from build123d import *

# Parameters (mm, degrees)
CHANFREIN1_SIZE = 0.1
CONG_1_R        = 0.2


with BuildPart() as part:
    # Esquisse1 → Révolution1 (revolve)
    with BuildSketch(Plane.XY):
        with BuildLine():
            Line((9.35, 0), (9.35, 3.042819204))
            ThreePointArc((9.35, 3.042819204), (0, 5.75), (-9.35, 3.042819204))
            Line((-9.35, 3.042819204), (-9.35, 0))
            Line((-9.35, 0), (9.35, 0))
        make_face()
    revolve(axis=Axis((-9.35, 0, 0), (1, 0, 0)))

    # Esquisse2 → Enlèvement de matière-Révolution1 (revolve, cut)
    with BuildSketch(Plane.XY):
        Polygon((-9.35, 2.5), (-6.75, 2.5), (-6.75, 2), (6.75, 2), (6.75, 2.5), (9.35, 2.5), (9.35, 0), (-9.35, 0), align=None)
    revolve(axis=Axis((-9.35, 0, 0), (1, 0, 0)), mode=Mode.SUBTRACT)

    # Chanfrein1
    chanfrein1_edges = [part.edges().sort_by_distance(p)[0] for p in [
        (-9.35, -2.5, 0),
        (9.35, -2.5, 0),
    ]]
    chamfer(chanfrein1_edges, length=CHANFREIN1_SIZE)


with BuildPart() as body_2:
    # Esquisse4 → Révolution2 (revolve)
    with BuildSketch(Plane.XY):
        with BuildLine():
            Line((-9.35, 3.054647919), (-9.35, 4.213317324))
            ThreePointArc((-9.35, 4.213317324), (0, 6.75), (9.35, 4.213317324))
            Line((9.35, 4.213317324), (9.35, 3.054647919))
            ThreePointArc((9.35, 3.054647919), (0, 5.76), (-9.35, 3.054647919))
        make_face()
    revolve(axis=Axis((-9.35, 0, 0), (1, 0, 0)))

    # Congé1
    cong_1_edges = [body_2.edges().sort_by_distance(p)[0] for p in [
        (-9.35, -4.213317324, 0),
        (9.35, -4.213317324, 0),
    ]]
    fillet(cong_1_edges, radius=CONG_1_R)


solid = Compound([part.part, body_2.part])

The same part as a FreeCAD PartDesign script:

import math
import FreeCAD as App
import Part
import Sketcher
from FreeCAD import Vector


def edges_at(feature, points):
    """Names of the edges that pass closest to the given points."""
    edges = feature.Shape.Edges
    near = lambda p: min(range(len(edges)), key=lambda i: edges[i].distToShape(Part.Vertex(*p))[0])
    return sorted({f"Edge{near(p) + 1}" for p in points})

doc = App.newDocument("Part")
body = doc.addObject("PartDesign::Body", "Body")

# Sketch on XY plane
sketch1 = doc.addObject("Sketcher::SketchObject", "Sketch")
body.addObject(sketch1)
sketch1.AttachmentSupport = (doc.XY_Plane, [""])
sketch1.MapMode = "FlatFace"
sketch1.addGeometry([
    Part.LineSegment(Vector(9.3, 0, 0), Vector(9.3, 3, 0)),
    Part.ArcOfCircle(Part.Circle(Vector(0, -11.8, 0), Vector(0, 0, 1), 17.5), math.radians(58), math.radians(122)),
    Part.LineSegment(Vector(-9.3, 3, 0), Vector(-9.3, 0, 0)),
    Part.LineSegment(Vector(-9.3, 0, 0), Vector(9.3, 0, 0)),
], False)
sketch1.addConstraint([
    Sketcher.Constraint("Coincident", 0, 2, 1, 1),
    Sketcher.Constraint("Coincident", 1, 2, 2, 1),
    Sketcher.Constraint("Coincident", 2, 2, 3, 1),
    Sketcher.Constraint("Coincident", 3, 2, 0, 1),
    Sketcher.Constraint("Vertical", 0),
    Sketcher.Constraint("Vertical", 2),
    Sketcher.Constraint("Horizontal", 3),
    Sketcher.Constraint("Symmetric", 2, 2, 3, 2, -1, 1),
    Sketcher.Constraint("PointOnObject", 1, 3, -2),
    Sketcher.Constraint("Radius", 1, 17.5),
    Sketcher.Constraint("DistanceX", 3, 1, 3, 2, 18.7),
    Sketcher.Constraint("DistanceY", 1, 3, -1, 1, 11.75),
])
revolution = doc.addObject("PartDesign::Revolution", "Revolution")
body.addObject(revolution)
revolution.Profile = sketch1
revolution.ReferenceAxis = (sketch1, ["H_Axis"])
revolution.Angle = 360

# Sketch on XY plane
sketch2 = doc.addObject("Sketcher::SketchObject", "Sketch001")
body.addObject(sketch2)
sketch2.AttachmentSupport = (doc.XY_Plane, [""])
sketch2.MapMode = "FlatFace"
sketch2.addGeometry([
    Part.LineSegment(Vector(-6.8, 2.5, 0), Vector(-9.3, 2.5, 0)),  # 0
    Part.LineSegment(Vector(-9.3, 2.5, 0), Vector(-9.3, 0, 0)),  # 1
    Part.LineSegment(Vector(-9.3, 0, 0), Vector(9.3, 0, 0)),  # 2
    Part.LineSegment(Vector(9.3, 0, 0), Vector(9.3, 2.5, 0)),  # 3
    Part.LineSegment(Vector(9.3, 2.5, 0), Vector(6.8, 2.5, 0)),  # 4
    Part.LineSegment(Vector(6.8, 2.5, 0), Vector(6.8, 2, 0)),  # 5
    Part.LineSegment(Vector(6.8, 2, 0), Vector(-6.8, 2, 0)),  # 6
    Part.LineSegment(Vector(-6.8, 2, 0), Vector(-6.8, 2.5, 0)),  # 7
], False)
sketch2.addConstraint([
    Sketcher.Constraint("Coincident", 0, 2, 1, 1),
    Sketcher.Constraint("Coincident", 1, 2, 2, 1),
    Sketcher.Constraint("Coincident", 2, 2, 3, 1),
    Sketcher.Constraint("Coincident", 3, 2, 4, 1),
    Sketcher.Constraint("Coincident", 4, 2, 5, 1),
    Sketcher.Constraint("Coincident", 5, 2, 6, 1),
    Sketcher.Constraint("Coincident", 6, 2, 7, 1),
    Sketcher.Constraint("Coincident", 7, 2, 0, 1),
    Sketcher.Constraint("Horizontal", 0),
    Sketcher.Constraint("Vertical", 1),
    Sketcher.Constraint("Horizontal", 2),
    Sketcher.Constraint("Vertical", 3),
    Sketcher.Constraint("Horizontal", 4),
    Sketcher.Constraint("Vertical", 5),
    Sketcher.Constraint("Horizontal", 6),
    Sketcher.Constraint("Vertical", 7),
    Sketcher.Constraint("Symmetric", 1, 2, 2, 2, -1, 1),
    Sketcher.Constraint("Symmetric", 4, 2, 7, 2, -2),
    Sketcher.Constraint("DistanceX", 0, 2, 0, 1, 2.6),
    Sketcher.Constraint("DistanceX", 2, 1, 2, 2, 18.7),
    Sketcher.Constraint("DistanceY", 1, 2, 1, 1, 2.5),
    Sketcher.Constraint("DistanceY", 5, 2, 5, 1, 0.5),
])
groove = doc.addObject("PartDesign::Groove", "Groove")
body.addObject(groove)
groove.Profile = sketch2
groove.ReferenceAxis = (sketch2, ["H_Axis"])
groove.Angle = 360
doc.recompute()

chamfer = doc.addObject("PartDesign::Chamfer", "Chamfer")
body.addObject(chamfer)
chamfer.Base = (groove, edges_at(groove, [(-9.35, -2.5, 0), (9.35, -2.5, 0)]))
chamfer.Size = 0.1
body2 = doc.addObject("PartDesign::Body", "Body001")

# Sketch on XY plane
sketch3 = doc.addObject("Sketcher::SketchObject", "Sketch002")
body2.addObject(sketch3)
sketch3.AttachmentSupport = (doc.getObject("XY_Plane001"), [""])
sketch3.MapMode = "FlatFace"
sketch3.addGeometry([
    Part.LineSegment(Vector(-9.3, 4.2, 0), Vector(-9.3, 3.1, 0)),
    Part.ArcOfCircle(Part.Circle(Vector(0, -11.8, 0), Vector(0, 0, 1), 17.5), math.radians(58), math.radians(122)),
    Part.LineSegment(Vector(9.3, 3.1, 0), Vector(9.3, 4.2, 0)),
    Part.ArcOfCircle(Part.Circle(Vector(0, -11.7, 0), Vector(0, 0, 1), 18.5), math.radians(60), math.radians(120)),
], False)
sketch3.addConstraint([
    Sketcher.Constraint("Coincident", 0, 2, 1, 2),
    Sketcher.Constraint("Coincident", 1, 1, 2, 1),
    Sketcher.Constraint("Coincident", 2, 2, 3, 1),
    Sketcher.Constraint("Coincident", 3, 2, 0, 1),
    Sketcher.Constraint("Vertical", 0),
    Sketcher.Constraint("Vertical", 2),
    Sketcher.Constraint("Coincident", 3, 3, 1, 3),
    Sketcher.Constraint("Symmetric", 0, 2, 1, 1, -2),
    Sketcher.Constraint("Radius", 3, 18.5),
    Sketcher.Constraint("Radius", 1, 17.51),
    Sketcher.Constraint("DistanceX", 0, 2, 1, 1, 18.7),
    Sketcher.Constraint("DistanceY", 1, 3, -1, 1, 11.75),
])
revolution2 = doc.addObject("PartDesign::Revolution", "Revolution001")
body2.addObject(revolution2)
revolution2.Profile = sketch3
revolution2.ReferenceAxis = (sketch3, ["H_Axis"])
revolution2.Angle = 360
doc.recompute()

fillet = doc.addObject("PartDesign::Fillet", "Fillet")
body2.addObject(fillet)
fillet.Base = (revolution2, edges_at(revolution2, [(-9.35, -4.213, 0), (9.35, -4.213, 0)]))
fillet.Radius = 0.2

doc.recompute()
